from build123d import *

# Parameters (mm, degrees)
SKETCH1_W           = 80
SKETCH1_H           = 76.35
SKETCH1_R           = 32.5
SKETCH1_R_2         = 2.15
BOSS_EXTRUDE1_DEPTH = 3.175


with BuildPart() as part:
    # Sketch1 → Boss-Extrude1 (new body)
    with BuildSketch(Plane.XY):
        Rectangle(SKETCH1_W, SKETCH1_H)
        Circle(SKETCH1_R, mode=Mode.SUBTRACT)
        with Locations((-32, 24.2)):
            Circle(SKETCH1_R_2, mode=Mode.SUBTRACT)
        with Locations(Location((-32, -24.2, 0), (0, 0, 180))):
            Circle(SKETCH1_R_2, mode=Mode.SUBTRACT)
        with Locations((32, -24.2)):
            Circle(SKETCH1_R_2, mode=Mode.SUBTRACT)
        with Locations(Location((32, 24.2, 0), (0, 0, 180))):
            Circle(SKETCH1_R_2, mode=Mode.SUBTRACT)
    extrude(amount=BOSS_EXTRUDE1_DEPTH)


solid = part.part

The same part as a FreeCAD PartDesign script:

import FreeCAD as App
import Part
import Sketcher

V = App.Vector

doc = App.newDocument("Part")
body = doc.addObject("PartDesign::Body", "Body")

# Sketch on XY plane
sketch1 = body.newObject("Sketcher::SketchObject", "Sketch")
sketch1.AttachmentSupport = (doc.getObject("XY_Plane"), [""])
sketch1.MapMode = "FlatFace"
sketch1.addGeometry(Part.LineSegment(V(-40, 38.2, 0), V(-40, -38.2, 0)), False)
sketch1.addGeometry(Part.LineSegment(V(-40, -38.2, 0), V(40, -38.2, 0)), False)
sketch1.addGeometry(Part.LineSegment(V(40, -38.2, 0), V(40, 38.2, 0)), False)
sketch1.addGeometry(Part.LineSegment(V(40, 38.2, 0), V(-40, 38.2, 0)), False)
sketch1.addGeometry(Part.Circle(V(-32, -24.2, 0), V(0, 0, 1), 2.1), False)
sketch1.addGeometry(Part.Circle(V(32, -24.2, 0), V(0, 0, 1), 2.1), False)
sketch1.addGeometry(Part.Circle(V(-32, 24.2, 0), V(0, 0, 1), 2.1), False)
sketch1.addGeometry(Part.Circle(V(0, 0, 0), V(0, 0, 1), 32.5), False)
sketch1.addGeometry(Part.Circle(V(32, 24.2, 0), V(0, 0, 1), 2.1), False)
sketch1.addConstraint(Sketcher.Constraint("Coincident", 0, 2, 1, 1))
sketch1.addConstraint(Sketcher.Constraint("Coincident", 1, 2, 2, 1))
sketch1.addConstraint(Sketcher.Constraint("Coincident", 2, 2, 3, 1))
sketch1.addConstraint(Sketcher.Constraint("Coincident", 3, 2, 0, 1))
sketch1.addConstraint(Sketcher.Constraint("Vertical", 0))
sketch1.addConstraint(Sketcher.Constraint("Horizontal", 1))
sketch1.addConstraint(Sketcher.Constraint("Vertical", 2))
sketch1.addConstraint(Sketcher.Constraint("Horizontal", 3))
sketch1.addConstraint(Sketcher.Constraint("Coincident", 7, 3, -1, 1))
sketch1.addConstraint(Sketcher.Constraint("Equal", 4, 5))
sketch1.addConstraint(Sketcher.Constraint("Equal", 5, 6))
sketch1.addConstraint(Sketcher.Constraint("Equal", 6, 8))
sketch1.addConstraint(Sketcher.Constraint("Symmetric", 5, 3, 6, 3, -1, 1))
sketch1.addConstraint(Sketcher.Constraint("Symmetric", 4, 3, 8, 3, -1, 1))
sketch1.addConstraint(Sketcher.Constraint("Symmetric", 0, 2, 2, 2, -1, 1))
sketch1.addConstraint(Sketcher.Constraint("Symmetric", 4, 3, 5, 3, -2))
sketch1.addConstraint(Sketcher.Constraint("Diameter", 7, 65.0))
sketch1.addConstraint(Sketcher.Constraint("Diameter", 4, 4.3))
sketch1.addConstraint(Sketcher.Constraint("DistanceX", 1, 1, 1, 2, 80.0))
sketch1.addConstraint(Sketcher.Constraint("DistanceX", 4, 3, -1, 1, 32.0))
sketch1.addConstraint(Sketcher.Constraint("DistanceY", 0, 2, 0, 1, 76.35))
sketch1.addConstraint(Sketcher.Constraint("DistanceY", 4, 3, -1, 1, 24.2))
pad1 = body.newObject("PartDesign::Pad", "Pad")
pad1.Profile = sketch1
pad1.Length = 3.175

doc.recompute()
